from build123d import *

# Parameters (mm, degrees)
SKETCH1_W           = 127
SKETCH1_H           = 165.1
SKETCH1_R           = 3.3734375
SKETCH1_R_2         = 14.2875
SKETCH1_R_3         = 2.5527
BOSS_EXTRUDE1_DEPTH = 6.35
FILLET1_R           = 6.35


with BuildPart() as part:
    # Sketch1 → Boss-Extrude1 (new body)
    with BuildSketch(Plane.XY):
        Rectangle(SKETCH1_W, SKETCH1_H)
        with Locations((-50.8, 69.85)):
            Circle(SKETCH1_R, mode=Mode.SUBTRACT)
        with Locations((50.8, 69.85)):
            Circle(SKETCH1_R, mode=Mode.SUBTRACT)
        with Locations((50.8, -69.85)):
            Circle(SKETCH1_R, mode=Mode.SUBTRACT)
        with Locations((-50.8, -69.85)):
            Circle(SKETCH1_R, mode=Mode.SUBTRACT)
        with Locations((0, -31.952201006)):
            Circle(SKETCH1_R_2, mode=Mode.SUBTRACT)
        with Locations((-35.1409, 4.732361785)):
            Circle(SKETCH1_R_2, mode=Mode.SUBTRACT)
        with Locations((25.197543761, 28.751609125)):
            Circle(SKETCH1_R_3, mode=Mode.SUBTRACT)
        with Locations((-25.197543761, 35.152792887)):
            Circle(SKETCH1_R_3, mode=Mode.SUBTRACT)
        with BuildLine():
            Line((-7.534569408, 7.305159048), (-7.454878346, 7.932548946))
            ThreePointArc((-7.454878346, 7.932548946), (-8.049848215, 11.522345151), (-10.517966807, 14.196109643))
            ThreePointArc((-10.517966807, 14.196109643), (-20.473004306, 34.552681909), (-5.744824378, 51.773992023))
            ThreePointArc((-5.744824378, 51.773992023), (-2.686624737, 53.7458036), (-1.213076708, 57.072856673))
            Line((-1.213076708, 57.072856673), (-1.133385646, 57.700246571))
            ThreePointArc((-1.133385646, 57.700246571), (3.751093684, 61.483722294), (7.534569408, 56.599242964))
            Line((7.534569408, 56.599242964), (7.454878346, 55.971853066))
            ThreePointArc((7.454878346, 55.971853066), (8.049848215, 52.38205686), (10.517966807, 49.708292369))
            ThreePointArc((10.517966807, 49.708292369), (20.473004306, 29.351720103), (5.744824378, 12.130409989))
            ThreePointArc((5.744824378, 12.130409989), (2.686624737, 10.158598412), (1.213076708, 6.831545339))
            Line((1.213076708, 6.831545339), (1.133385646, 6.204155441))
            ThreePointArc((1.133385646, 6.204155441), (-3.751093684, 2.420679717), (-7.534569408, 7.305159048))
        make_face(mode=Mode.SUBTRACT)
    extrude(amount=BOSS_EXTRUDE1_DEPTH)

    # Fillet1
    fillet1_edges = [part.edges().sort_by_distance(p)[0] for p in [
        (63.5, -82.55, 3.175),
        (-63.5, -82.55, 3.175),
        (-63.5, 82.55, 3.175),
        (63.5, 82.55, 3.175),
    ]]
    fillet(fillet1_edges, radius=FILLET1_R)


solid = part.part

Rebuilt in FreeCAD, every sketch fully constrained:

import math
import FreeCAD as App
import Part
import Sketcher

V = App.Vector
Q = App.Units.Quantity


def edges_at(feature, points):
    """Names of the edges that pass closest to the given points."""
    edges = feature.Shape.Edges
    near = lambda p: min(range(len(edges)), key=lambda i: edges[i].distToShape(Part.Vertex(*p))[0])
    return sorted({f"Edge{near(p) + 1}" for p in points})


def add_polygon(sketch, points):
    """Adds a closed chain of lines whose ends are joined by coincident constraints."""
    first, n = sketch.GeometryCount, len(points)
    for a, b in zip(points, points[1:] + points[:1]):
        sketch.addGeometry(Part.LineSegment(App.Vector(*a, 0), App.Vector(*b, 0)), False)
    for i in range(n):
        sketch.addConstraint(Sketcher.Constraint("Coincident", first + i, 2, first + (i + 1) % n, 1))

doc = App.newDocument("Part")
body = doc.addObject("PartDesign::Body", "Body")

# Sketch on XY plane
sketch1 = body.newObject("Sketcher::SketchObject", "Sketch")
sketch1.AttachmentSupport = (doc.getObject("XY_Plane"), [""])
sketch1.MapMode = "FlatFace"
add_polygon(sketch1, [(-63.5, 82.5), (-63.5, -82.5), (63.5, -82.5), (63.5, 82.5)])  # lines 0-3
sketch1.addGeometry(Part.Circle(V(-50.8, -69.8, 0), V(0, 0, 1), 3.4), False)  # 4
sketch1.addGeometry(Part.Circle(V(50.8, -69.8, 0), V(0, 0, 1), 3.4), False)  # 5
sketch1.addGeometry(Part.Circle(V(0, -32, 0), V(0, 0, 1), 14.3), False)  # 6
sketch1.addGeometry(Part.Circle(V(-35.1, 4.7, 0), V(0, 0, 1), 14.3), False)  # 7
sketch1.addGeometry(Part.Circle(V(-25.2, 35.2, 0), V(0, 0, 1), 2.6), False)  # 8
sketch1.addGeometry(Part.Circle(V(-50.8, 69.8, 0), V(0, 0, 1), 3.4), False)  # 9
sketch1.addGeometry(Part.ArcOfCircle(Part.Circle(V(-3.2, 6.8, 0), V(0, 0, 1), 4.4), math.radians(173), math.radians(353)), False)  # 10
sketch1.addGeometry(Part.LineSegment(V(-7.5, 7.3, 0), V(-7.5, 7.9, 0)), False)  # 11
sketch1.addGeometry(Part.ArcOfCircle(Part.Circle(V(-13.8, 8.7, 0), V(0, 0, 1), 6.4), math.radians(-7), math.radians(59)), False)  # 12
sketch1.addGeometry(Part.ArcOfCircle(Part.Circle(V(0, 32, 0), V(0, 0, 1), 20.6), math.radians(106), math.radians(239)), False)  # 13
sketch1.addGeometry(Part.ArcOfCircle(Part.Circle(V(-7.5, 57.9, 0), V(0, 0, 1), 6.3), math.radians(-74), math.radians(-7)), False)  # 14
sketch1.addGeometry(Part.LineSegment(V(-1.2, 57.1, 0), V(-1.1, 57.7, 0)), False)  # 15
sketch1.addGeometry(Part.ArcOfCircle(Part.Circle(V(3.2, 57.1, 0), V(0, 0, 1), 4.4), math.radians(-7), math.radians(173)), False)  # 16
sketch1.addGeometry(Part.LineSegment(V(7.5, 56.6, 0), V(7.5, 56, 0)), False)  # 17
sketch1.addGeometry(Part.ArcOfCircle(Part.Circle(V(13.8, 55.2, 0), V(0, 0, 1), 6.4), math.radians(173), math.radians(239)), False)  # 18
sketch1.addGeometry(Part.ArcOfCircle(Part.Circle(V(0, 32, 0), V(0, 0, 1), 20.6), math.radians(-74), math.radians(59)), False)  # 19
sketch1.addGeometry(Part.ArcOfCircle(Part.Circle(V(7.5, 6, 0), V(0, 0, 1), 6.3), math.radians(106), math.radians(173)), False)  # 20
sketch1.addGeometry(Part.LineSegment(V(1.2, 6.8, 0), V(1.1, 6.2, 0)), False)  # 21
sketch1.addGeometry(Part.Circle(V(25.2, 28.8, 0), V(0, 0, 1), 2.6), False)  # 22
sketch1.addGeometry(Part.Circle(V(50.8, 69.8, 0), V(0, 0, 1), 3.4), False)  # 23
sketch1.addConstraint(Sketcher.Constraint("Tangent", 10, 1, 11, 1))
sketch1.addConstraint(Sketcher.Constraint("Tangent", 11, 2, 12, 1))
sketch1.addConstraint(Sketcher.Constraint("Tangent", 12, 2, 13, 2))
sketch1.addConstraint(Sketcher.Constraint("Tangent", 13, 1, 14, 1))
sketch1.addConstraint(Sketcher.Constraint("Tangent", 14, 2, 15, 1))
sketch1.addConstraint(Sketcher.Constraint("Tangent", 15, 2, 16, 2))
sketch1.addConstraint(Sketcher.Constraint("Tangent", 16, 1, 17, 1))
sketch1.addConstraint(Sketcher.Constraint("Tangent", 17, 2, 18, 1))
sketch1.addConstraint(Sketcher.Constraint("Tangent", 18, 2, 19, 2))
sketch1.addConstraint(Sketcher.Constraint("Tangent", 19, 1, 20, 1))
sketch1.addConstraint(Sketcher.Constraint("Tangent", 20, 2, 21, 1))
sketch1.addConstraint(Sketcher.Constraint("Tangent", 21, 2, 10, 2))
sketch1.addConstraint(Sketcher.Constraint("Vertical", 0))
sketch1.addConstraint(Sketcher.Constraint("Horizontal", 1))
sketch1.addConstraint(Sketcher.Constraint("Vertical", 2))
sketch1.addConstraint(Sketcher.Constraint("Horizontal", 3))
sketch1.addConstraint(Sketcher.Constraint("Coincident", 19, 3, 13, 3))
sketch1.addConstraint(Sketcher.Constraint("Equal", 4, 5))
sketch1.addConstraint(Sketcher.Constraint("Equal", 6, 7))
sketch1.addConstraint(Sketcher.Constraint("Equal", 5, 9))
sketch1.addConstraint(Sketcher.Constraint("Equal", 12, 14))
sketch1.addConstraint(Sketcher.Constraint("Equal", 10, 16))
sketch1.addConstraint(Sketcher.Constraint("Equal", 14, 18))
sketch1.addConstraint(Sketcher.Constraint("Equal", 13, 19))
sketch1.addConstraint(Sketcher.Constraint("Equal", 18, 20))
sketch1.addConstraint(Sketcher.Constraint("Equal", 8, 22))
sketch1.addConstraint(Sketcher.Constraint("Equal", 9, 23))
sketch1.addConstraint(Sketcher.Constraint("Symmetric", 5, 3, 9, 3, -1, 1))
sketch1.addConstraint(Sketcher.Constraint("Symmetric", 6, 3, 13, 3, -1, 1))
sketch1.addConstraint(Sketcher.Constraint("Symmetric", 4, 3, 23, 3, -1, 1))
sketch1.addConstraint(Sketcher.Constraint("Symmetric", 0, 2, 2, 2, -1, 1))
sketch1.addConstraint(Sketcher.Constraint("Symmetric", 4, 3, 5, 3, -2))
sketch1.addConstraint(Sketcher.Constraint("PointOnObject", 6, 3, -2))
sketch1.addConstraint(Sketcher.Constraint("Parallel", 11, 15))
sketch1.addConstraint(Sketcher.Constraint("Parallel", 15, 17))
sketch1.addConstraint(Sketcher.Constraint("Parallel", 17, 21))
sketch1.addConstraint(Sketcher.Constraint("Equal", 11, 15))
sketch1.addConstraint(Sketcher.Constraint("Equal", 15, 17))
sketch1.addConstraint(Sketcher.Constraint("Equal", 17, 21))
sketch1.addConstraint(Sketcher.Constraint("DistanceX", 1, 1, 1, 2, Q("5 in")))
sketch1.addConstraint(Sketcher.Constraint("Radius", 12, Q("0.25 in")))
sketch1.addConstraint(Sketcher.Constraint("Diameter", 4, Q("0.265625 in")))
sketch1.addConstraint(Sketcher.Constraint("Diameter", 6, Q("1.125 in")))
sketch1.addConstraint(Sketcher.Constraint("Diameter", 8, Q("0.201 in")))
sketch1.addConstraint(Sketcher.Constraint("DistanceY", 0, 2, 0, 1, Q("6.5 in")))
sketch1.addConstraint(Sketcher.Constraint("DistanceX", 4, 3, -1, 1, Q("2 in")))
sketch1.addConstraint(Sketcher.Constraint("Radius", 10, Q("0.172 in")))
sketch1.addConstraint(Sketcher.Constraint("Radius", 13, Q("0.8125 in")))
sketch1.addConstraint(Sketcher.Constraint("DistanceY", 4, 3, 9, 3, Q("5.5 in")))
sketch1.addConstraint(Sketcher.Constraint("DistanceX", 7, 3, -1, 1, Q("1.3835 in")))
sketch1.addConstraint(Sketcher.Constraint("DistanceY", 6, 3, -1, 1, 31.952201))
sketch1.addConstraint(Sketcher.Constraint("DistanceX", 12, 3, 14, 3, 6.241802))
sketch1.addConstraint(Sketcher.Constraint("Distance", 11, 0.632431))
sketch1.addConstraint(Sketcher.Constraint("DistanceY", -1, 1, 7, 3, 4.732362))
sketch1.addConstraint(Sketcher.Constraint("DistanceY", -1, 1, 22, 3, 28.751609))
sketch1.addConstraint(Sketcher.Constraint("DistanceY", 7, 3, 8, 3, 30.420431))
sketch1.addConstraint(Sketcher.Constraint("DistanceX", 8, 3, 10, 3, 21.996952))
sketch1.addConstraint(Sketcher.Constraint("DistanceX", 20, 3, 22, 3, 17.685081))
pad1 = body.newObject("PartDesign::Pad", "Pad")
pad1.Profile = sketch1
pad1.Length = Q("0.25 in")
doc.recompute()

fillet = body.newObject("PartDesign::Fillet", "Fillet")
fillet.Base = (pad1, edges_at(pad1, [
    (63.5, -82.55, 3.175),
    (-63.5, -82.55, 3.175),
    (-63.5, 82.55, 3.175),
    (63.5, 82.55, 3.175),
]))
fillet.Radius = Q("0.25 in")

doc.recompute()
